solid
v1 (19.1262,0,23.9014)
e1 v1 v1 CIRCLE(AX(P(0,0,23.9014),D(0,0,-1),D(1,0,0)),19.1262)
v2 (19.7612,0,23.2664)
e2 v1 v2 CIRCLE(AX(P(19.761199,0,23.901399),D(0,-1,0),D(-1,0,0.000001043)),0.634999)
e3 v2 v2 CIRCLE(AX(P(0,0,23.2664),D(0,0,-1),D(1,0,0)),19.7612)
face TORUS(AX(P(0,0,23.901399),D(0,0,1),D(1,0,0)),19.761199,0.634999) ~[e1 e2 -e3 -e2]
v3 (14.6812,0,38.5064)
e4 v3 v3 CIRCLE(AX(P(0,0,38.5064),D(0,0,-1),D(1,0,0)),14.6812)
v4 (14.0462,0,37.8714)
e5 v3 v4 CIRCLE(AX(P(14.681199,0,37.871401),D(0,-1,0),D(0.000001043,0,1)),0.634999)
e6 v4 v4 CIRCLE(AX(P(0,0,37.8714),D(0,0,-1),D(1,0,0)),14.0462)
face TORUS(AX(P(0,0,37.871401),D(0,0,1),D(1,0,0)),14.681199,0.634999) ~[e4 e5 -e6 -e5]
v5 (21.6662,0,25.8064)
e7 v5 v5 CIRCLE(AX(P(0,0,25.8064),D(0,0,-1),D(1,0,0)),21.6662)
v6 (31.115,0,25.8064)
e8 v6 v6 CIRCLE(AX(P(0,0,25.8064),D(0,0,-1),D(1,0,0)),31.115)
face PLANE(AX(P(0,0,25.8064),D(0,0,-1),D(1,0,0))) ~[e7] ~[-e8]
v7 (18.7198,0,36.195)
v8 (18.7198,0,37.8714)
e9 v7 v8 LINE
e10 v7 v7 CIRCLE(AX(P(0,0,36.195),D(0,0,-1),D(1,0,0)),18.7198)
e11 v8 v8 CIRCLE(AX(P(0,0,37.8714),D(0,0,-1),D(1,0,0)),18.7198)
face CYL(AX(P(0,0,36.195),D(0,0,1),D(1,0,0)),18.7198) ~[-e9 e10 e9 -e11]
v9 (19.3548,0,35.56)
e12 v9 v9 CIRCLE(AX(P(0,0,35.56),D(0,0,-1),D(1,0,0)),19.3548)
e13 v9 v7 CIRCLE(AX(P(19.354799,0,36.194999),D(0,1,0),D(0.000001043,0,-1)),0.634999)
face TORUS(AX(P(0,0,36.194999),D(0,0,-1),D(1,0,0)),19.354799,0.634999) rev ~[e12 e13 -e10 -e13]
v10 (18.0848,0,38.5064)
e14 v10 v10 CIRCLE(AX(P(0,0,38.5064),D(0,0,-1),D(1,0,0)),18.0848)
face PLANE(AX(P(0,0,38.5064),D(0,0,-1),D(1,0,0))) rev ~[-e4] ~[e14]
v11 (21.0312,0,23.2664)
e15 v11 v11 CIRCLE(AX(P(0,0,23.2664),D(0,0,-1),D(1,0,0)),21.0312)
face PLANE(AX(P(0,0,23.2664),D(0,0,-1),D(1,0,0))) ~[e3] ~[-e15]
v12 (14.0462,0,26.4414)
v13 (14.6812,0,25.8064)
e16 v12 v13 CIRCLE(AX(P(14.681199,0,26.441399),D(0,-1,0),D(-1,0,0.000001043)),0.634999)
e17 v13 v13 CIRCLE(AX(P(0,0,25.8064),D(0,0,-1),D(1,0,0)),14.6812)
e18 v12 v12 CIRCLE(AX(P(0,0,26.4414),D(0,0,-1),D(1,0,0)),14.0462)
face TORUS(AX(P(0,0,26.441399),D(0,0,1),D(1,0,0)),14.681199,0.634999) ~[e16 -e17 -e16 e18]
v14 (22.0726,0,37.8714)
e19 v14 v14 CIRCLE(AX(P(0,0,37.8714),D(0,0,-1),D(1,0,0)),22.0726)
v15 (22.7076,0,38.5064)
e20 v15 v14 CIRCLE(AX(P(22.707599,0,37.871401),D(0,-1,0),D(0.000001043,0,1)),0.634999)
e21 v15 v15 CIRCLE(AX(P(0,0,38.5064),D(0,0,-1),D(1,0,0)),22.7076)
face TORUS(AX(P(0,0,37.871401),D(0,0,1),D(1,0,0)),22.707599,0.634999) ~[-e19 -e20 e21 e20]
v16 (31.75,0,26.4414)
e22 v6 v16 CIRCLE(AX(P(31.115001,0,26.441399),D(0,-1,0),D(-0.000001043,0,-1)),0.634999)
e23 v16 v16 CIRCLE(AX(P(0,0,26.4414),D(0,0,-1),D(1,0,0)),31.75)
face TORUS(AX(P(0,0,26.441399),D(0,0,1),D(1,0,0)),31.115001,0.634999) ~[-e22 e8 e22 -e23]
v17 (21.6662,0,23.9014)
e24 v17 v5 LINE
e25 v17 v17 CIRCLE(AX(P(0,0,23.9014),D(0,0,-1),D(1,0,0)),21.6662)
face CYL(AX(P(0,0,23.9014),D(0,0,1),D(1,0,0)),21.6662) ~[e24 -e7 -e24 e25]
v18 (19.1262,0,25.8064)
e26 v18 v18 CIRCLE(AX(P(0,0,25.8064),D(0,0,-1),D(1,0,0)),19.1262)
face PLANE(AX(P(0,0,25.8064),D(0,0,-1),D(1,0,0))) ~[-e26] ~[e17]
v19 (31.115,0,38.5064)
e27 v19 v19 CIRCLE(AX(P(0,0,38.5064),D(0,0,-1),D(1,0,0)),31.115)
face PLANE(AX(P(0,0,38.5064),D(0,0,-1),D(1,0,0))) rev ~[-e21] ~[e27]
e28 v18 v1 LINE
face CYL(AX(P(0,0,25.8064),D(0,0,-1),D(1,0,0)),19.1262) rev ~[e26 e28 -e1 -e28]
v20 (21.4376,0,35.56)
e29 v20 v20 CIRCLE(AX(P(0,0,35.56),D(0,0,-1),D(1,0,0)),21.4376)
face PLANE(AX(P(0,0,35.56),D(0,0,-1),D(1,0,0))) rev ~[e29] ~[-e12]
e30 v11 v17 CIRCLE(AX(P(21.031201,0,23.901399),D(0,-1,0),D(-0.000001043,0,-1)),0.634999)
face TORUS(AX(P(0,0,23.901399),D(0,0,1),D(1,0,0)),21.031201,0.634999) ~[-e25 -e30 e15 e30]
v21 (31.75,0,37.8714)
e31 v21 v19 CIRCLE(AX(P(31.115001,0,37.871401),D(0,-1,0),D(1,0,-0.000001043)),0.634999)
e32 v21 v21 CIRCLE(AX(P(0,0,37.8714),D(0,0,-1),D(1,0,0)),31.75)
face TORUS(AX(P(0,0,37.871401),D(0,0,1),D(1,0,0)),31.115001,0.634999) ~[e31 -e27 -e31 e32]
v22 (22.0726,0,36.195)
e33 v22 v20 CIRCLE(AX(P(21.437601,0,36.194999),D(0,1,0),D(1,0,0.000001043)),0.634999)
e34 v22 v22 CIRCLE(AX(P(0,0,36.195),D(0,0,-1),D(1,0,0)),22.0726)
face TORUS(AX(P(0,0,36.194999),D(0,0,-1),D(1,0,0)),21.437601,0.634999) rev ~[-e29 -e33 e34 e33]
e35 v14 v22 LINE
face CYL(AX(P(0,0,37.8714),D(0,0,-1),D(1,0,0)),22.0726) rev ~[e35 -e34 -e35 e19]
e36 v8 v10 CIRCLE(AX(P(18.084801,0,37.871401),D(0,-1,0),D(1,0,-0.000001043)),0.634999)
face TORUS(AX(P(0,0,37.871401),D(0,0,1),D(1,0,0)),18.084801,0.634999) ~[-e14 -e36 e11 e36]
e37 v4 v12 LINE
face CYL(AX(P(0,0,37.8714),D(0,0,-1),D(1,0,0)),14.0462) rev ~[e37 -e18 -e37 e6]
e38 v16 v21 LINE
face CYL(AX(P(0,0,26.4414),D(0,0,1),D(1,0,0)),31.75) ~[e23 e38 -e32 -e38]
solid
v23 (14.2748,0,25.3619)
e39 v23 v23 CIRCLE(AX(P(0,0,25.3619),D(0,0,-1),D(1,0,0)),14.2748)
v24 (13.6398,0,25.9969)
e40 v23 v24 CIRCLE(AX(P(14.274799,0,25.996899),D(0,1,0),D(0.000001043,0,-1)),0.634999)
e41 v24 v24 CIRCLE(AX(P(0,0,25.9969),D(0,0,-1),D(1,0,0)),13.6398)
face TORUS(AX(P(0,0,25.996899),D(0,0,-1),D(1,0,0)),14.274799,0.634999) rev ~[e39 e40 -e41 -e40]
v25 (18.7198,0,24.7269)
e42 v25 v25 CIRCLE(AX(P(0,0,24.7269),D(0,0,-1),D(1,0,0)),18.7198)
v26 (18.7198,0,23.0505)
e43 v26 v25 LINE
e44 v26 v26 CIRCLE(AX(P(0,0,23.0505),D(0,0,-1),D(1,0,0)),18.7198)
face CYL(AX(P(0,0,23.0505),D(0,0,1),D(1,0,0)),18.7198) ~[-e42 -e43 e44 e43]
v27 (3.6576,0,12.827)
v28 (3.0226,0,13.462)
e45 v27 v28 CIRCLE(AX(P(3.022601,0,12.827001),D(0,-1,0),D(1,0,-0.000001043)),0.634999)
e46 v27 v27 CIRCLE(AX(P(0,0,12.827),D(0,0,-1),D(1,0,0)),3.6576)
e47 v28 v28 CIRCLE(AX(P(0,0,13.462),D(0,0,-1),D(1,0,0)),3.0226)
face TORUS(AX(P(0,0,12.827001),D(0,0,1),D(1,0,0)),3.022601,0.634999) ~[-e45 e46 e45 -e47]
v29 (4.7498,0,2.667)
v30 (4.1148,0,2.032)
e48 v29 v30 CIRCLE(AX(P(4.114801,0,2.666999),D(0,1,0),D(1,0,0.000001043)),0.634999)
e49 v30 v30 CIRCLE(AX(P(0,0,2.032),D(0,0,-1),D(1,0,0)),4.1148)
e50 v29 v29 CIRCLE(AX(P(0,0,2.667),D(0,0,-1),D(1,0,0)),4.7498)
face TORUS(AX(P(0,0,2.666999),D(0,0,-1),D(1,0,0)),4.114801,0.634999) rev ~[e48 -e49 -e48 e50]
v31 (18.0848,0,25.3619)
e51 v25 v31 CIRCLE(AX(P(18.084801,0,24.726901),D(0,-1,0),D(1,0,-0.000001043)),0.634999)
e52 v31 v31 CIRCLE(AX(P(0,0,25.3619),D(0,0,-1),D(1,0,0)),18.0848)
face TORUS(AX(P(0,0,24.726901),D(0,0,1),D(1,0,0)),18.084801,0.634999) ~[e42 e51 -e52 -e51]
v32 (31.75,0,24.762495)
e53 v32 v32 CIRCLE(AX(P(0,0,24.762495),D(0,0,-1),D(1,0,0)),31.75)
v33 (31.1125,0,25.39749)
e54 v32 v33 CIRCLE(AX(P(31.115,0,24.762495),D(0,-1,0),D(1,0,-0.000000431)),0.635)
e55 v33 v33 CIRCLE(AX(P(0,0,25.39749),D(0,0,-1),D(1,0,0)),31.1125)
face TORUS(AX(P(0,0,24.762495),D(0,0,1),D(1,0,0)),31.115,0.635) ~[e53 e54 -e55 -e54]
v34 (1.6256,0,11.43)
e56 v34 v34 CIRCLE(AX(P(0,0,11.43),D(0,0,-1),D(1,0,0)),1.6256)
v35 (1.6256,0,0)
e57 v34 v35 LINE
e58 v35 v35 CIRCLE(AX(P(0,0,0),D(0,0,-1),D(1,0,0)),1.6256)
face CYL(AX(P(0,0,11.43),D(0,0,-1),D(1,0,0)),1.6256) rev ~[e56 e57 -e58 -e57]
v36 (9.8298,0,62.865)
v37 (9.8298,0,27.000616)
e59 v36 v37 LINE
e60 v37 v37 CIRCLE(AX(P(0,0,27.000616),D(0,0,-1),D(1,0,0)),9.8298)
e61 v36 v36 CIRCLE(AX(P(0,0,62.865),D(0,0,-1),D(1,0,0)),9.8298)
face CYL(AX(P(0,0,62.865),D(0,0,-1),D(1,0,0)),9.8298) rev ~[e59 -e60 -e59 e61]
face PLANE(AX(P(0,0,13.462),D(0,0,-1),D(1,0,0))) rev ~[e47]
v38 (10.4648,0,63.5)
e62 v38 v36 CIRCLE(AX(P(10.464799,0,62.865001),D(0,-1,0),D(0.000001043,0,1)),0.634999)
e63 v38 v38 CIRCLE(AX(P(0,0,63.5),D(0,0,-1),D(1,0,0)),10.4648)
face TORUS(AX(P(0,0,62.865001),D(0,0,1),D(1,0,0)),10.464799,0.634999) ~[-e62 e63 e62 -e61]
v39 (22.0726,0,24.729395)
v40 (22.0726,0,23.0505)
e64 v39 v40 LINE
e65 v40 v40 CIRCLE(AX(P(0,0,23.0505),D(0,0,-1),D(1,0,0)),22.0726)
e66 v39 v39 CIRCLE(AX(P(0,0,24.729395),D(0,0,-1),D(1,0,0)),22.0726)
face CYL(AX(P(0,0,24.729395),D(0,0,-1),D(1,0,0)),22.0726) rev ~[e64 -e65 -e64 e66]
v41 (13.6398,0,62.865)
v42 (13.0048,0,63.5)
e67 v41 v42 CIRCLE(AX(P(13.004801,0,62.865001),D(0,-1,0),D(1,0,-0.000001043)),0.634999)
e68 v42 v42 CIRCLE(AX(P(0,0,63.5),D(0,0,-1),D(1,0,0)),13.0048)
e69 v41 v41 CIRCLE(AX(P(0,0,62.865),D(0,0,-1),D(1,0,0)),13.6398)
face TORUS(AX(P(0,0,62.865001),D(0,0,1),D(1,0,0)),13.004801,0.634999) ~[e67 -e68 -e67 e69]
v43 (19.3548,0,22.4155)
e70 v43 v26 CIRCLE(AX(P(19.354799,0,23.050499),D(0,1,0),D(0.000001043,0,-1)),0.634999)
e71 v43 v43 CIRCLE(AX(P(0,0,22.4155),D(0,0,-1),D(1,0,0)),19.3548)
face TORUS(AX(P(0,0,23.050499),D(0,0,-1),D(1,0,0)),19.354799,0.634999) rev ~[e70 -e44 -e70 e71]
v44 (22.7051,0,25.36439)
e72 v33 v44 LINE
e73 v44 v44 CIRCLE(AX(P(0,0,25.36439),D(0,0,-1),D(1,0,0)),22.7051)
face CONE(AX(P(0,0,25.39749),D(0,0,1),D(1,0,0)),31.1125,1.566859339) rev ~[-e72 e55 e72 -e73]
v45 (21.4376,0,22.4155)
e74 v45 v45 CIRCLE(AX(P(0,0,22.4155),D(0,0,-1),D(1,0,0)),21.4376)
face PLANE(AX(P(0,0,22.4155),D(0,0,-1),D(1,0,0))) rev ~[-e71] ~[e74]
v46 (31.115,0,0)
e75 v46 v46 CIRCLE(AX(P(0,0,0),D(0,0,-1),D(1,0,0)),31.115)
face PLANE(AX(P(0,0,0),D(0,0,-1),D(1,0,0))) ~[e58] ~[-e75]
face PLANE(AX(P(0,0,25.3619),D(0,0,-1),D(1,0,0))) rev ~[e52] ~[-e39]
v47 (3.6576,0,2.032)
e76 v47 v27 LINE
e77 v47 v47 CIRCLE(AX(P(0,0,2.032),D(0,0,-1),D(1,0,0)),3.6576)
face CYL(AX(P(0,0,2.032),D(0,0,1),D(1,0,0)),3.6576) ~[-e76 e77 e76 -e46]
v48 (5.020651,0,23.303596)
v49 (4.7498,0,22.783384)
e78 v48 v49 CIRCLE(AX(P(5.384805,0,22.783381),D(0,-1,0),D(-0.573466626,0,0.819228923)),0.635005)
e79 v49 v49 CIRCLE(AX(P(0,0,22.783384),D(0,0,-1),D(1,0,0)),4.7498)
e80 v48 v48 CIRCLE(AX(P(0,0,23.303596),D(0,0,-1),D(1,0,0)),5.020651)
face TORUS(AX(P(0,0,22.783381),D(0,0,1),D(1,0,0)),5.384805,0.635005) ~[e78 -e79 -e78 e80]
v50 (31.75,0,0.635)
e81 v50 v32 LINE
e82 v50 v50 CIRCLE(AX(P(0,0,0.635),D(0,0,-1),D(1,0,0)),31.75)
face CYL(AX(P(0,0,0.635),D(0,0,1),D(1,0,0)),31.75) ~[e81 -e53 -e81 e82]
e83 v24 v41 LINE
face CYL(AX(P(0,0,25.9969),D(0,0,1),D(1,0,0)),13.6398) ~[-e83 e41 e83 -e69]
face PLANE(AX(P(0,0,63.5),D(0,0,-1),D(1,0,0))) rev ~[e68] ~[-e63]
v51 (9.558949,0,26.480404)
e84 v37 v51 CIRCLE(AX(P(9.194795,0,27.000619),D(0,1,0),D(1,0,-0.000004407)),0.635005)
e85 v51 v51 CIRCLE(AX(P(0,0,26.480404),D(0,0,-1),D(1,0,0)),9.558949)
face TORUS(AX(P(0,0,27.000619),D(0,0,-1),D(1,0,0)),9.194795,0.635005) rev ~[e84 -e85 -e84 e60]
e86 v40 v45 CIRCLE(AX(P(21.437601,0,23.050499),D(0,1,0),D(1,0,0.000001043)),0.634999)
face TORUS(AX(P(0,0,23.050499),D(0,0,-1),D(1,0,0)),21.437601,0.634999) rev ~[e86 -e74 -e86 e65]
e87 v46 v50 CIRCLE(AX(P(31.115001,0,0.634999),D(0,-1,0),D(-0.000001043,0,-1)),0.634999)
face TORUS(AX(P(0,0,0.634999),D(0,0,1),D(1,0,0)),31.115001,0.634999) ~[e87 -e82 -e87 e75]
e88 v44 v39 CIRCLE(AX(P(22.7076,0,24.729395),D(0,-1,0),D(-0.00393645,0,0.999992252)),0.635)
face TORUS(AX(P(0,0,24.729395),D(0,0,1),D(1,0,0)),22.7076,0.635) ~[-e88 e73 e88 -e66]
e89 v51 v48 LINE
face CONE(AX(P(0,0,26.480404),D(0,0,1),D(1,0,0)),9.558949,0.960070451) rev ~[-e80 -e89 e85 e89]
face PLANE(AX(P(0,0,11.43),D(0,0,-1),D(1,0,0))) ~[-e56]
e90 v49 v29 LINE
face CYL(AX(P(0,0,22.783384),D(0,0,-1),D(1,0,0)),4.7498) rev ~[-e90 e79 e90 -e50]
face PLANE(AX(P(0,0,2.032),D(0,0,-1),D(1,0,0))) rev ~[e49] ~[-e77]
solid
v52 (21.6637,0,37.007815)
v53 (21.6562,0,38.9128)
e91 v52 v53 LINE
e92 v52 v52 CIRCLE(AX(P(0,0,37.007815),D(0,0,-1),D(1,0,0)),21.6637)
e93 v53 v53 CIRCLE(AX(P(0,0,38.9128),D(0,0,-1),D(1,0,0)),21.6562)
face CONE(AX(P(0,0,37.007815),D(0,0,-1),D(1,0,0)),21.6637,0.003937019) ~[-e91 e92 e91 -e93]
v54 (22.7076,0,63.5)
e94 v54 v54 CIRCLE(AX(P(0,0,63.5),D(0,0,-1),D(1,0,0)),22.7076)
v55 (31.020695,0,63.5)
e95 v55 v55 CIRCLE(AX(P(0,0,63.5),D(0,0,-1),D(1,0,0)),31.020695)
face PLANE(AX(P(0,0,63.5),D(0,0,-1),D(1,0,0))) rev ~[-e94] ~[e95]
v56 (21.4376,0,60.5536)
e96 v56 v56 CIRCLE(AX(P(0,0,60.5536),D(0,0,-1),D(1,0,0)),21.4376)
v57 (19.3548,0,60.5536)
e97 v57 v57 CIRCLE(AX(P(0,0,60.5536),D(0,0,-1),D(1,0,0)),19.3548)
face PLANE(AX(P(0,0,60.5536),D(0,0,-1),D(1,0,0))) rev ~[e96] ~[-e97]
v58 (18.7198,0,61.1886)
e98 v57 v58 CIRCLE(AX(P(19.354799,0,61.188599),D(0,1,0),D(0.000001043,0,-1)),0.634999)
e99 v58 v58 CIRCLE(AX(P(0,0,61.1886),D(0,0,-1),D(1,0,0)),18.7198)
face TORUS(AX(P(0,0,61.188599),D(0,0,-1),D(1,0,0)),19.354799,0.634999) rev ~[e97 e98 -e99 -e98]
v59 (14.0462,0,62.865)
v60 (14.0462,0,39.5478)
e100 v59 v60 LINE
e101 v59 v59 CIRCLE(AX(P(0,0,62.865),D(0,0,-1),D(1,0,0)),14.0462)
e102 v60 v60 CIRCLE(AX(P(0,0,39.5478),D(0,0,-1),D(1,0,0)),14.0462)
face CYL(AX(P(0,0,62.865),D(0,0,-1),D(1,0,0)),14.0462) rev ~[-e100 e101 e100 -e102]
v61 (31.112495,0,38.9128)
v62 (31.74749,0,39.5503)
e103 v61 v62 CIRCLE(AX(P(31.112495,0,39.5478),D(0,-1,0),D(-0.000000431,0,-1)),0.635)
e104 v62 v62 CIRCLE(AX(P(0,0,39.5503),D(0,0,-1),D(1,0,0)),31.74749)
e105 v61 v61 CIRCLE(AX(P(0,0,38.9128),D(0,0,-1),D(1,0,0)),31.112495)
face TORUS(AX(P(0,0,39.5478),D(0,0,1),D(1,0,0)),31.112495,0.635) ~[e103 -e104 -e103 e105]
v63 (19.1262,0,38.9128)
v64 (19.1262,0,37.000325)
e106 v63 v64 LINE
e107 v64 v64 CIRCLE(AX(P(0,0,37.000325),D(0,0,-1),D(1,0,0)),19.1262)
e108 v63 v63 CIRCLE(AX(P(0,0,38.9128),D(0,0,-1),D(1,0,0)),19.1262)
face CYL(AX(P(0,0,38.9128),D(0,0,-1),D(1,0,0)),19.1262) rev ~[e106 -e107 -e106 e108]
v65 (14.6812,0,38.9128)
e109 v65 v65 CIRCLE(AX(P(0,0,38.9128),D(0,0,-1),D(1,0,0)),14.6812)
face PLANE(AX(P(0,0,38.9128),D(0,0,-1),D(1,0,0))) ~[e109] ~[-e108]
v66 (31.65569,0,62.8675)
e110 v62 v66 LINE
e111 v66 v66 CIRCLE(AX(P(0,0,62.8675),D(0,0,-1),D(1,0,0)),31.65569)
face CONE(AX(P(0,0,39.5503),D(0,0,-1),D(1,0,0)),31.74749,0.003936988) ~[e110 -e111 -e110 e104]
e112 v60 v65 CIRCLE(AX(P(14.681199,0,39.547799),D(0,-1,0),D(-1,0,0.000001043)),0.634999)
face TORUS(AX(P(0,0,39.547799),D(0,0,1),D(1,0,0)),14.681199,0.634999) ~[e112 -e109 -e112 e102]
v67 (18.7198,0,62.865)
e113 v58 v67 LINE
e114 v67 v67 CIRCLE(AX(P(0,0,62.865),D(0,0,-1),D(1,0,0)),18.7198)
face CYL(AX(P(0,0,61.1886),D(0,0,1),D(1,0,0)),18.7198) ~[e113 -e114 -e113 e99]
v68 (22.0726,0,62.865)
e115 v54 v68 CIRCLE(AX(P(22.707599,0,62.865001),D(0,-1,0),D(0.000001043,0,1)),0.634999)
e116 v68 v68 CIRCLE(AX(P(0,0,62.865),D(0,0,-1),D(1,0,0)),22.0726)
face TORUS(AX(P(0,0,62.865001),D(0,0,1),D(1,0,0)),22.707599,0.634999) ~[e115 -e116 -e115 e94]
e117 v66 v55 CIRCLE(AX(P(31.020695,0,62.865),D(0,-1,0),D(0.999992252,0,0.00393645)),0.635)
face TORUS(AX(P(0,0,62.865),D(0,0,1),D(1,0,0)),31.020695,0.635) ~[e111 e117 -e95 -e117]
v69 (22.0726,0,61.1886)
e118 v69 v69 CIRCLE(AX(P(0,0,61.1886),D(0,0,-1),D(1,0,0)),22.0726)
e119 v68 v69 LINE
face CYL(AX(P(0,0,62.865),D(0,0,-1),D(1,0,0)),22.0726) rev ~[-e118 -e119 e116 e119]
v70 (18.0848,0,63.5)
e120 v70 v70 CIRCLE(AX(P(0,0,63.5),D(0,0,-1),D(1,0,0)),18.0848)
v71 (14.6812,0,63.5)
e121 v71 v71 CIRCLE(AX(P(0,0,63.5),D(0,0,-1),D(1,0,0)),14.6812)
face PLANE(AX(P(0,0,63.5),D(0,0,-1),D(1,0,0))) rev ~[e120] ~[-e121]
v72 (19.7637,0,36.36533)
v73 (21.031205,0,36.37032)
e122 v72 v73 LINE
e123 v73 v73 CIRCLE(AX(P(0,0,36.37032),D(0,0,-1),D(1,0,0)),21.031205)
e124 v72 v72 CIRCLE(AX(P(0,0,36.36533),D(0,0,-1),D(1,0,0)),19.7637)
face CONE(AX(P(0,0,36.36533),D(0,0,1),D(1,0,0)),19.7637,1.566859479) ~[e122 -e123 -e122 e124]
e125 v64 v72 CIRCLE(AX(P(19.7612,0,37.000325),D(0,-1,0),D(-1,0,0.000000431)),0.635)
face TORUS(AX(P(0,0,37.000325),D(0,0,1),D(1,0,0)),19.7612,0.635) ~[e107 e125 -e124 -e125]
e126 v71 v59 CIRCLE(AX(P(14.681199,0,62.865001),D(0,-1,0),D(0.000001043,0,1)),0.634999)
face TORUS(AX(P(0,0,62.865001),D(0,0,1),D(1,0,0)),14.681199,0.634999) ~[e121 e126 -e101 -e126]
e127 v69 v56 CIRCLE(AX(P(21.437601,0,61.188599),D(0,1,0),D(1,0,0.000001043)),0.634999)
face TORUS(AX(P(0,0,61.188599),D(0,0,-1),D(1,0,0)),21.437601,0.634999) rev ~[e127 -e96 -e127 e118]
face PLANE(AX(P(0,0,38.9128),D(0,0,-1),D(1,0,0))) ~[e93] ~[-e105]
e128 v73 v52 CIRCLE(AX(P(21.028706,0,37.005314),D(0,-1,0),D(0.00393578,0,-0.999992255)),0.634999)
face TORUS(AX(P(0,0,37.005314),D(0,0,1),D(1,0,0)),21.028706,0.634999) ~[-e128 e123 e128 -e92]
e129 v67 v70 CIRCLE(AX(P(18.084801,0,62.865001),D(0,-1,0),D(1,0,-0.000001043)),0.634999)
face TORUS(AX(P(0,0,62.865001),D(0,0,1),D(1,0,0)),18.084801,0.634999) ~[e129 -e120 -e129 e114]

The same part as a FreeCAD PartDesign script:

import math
import FreeCAD as App
import Part
import Sketcher
from FreeCAD import Vector
Q = App.Units.Quantity

doc = App.newDocument("Part")
body = doc.addObject("PartDesign::Body", "Body")
body.AllowCompound = True

# Sketch on XZ plane
sketch1 = body.newObject("Sketcher::SketchObject", "Sketch")
sketch1.AttachmentSupport = (doc.getObject("XZ_Plane"), [""])
sketch1.MapMode = "FlatFace"
sketch1.addGeometry(Part.LineSegment(Vector(0, 13.46, 0), Vector(0, 11.43, 0)), False)
sketch1.addGeometry(Part.LineSegment(Vector(0, 11.43, 0), Vector(1.63, 11.43, 0)), False)
sketch1.addGeometry(Part.LineSegment(Vector(1.63, 11.43, 0), Vector(1.63, 0, 0)), False)
sketch1.addGeometry(Part.LineSegment(Vector(1.63, 0, 0), Vector(31.11, 0, 0)), False)
sketch1.addGeometry(Part.ArcOfCircle(Part.Circle(Vector(31.12, 0.63, 0), Vector(0, 0, 1), 0.63), math.radians(-90), math.radians(0)), False)
sketch1.addGeometry(Part.LineSegment(Vector(31.75, 0.64, 0), Vector(31.75, 24.76, 0)), False)
sketch1.addGeometry(Part.ArcOfCircle(Part.Circle(Vector(31.12, 24.76, 0), Vector(0, 0, 1), 0.63), math.radians(0), math.radians(90)), False)
sketch1.addGeometry(Part.LineSegment(Vector(31.11, 25.4, 0), Vector(22.71, 25.36, 0)), False)
sketch1.addGeometry(Part.ArcOfCircle(Part.Circle(Vector(22.71, 24.73, 0), Vector(0, 0, 1), 0.63), math.radians(90), math.radians(180)), False)
sketch1.addGeometry(Part.LineSegment(Vector(22.07, 24.73, 0), Vector(22.07, 23.05, 0)), False)
sketch1.addGeometry(Part.ArcOfCircle(Part.Circle(Vector(21.44, 23.05, 0), Vector(0, 0, 1), 0.63), math.radians(-90), math.radians(0)), False)
sketch1.addGeometry(Part.LineSegment(Vector(21.44, 22.42, 0), Vector(19.35, 22.42, 0)), False)
sketch1.addGeometry(Part.ArcOfCircle(Part.Circle(Vector(19.35, 23.05, 0), Vector(0, 0, 1), 0.63), math.radians(180), math.radians(270)), False)
sketch1.addGeometry(Part.LineSegment(Vector(18.72, 23.05, 0), Vector(18.72, 24.73, 0)), False)
sketch1.addGeometry(Part.ArcOfCircle(Part.Circle(Vector(18.08, 24.73, 0), Vector(0, 0, 1), 0.63), math.radians(0), math.radians(90)), False)
sketch1.addGeometry(Part.LineSegment(Vector(18.08, 25.36, 0), Vector(14.27, 25.36, 0)), False)
sketch1.addGeometry(Part.ArcOfCircle(Part.Circle(Vector(14.27, 26, 0), Vector(0, 0, 1), 0.63), math.radians(180), math.radians(270)), False)
sketch1.addGeometry(Part.LineSegment(Vector(13.64, 26, 0), Vector(13.64, 62.87, 0)), False)
sketch1.addGeometry(Part.ArcOfCircle(Part.Circle(Vector(13, 62.87, 0), Vector(0, 0, 1), 0.63), math.radians(0), math.radians(90)), False)
sketch1.addGeometry(Part.LineSegment(Vector(13, 63.5, 0), Vector(10.46, 63.5, 0)), False)
sketch1.addGeometry(Part.ArcOfCircle(Part.Circle(Vector(10.46, 62.87, 0), Vector(0, 0, 1), 0.63), math.radians(90), math.radians(180)), False)
sketch1.addGeometry(Part.LineSegment(Vector(9.83, 62.87, 0), Vector(9.83, 27, 0)), False)
sketch1.addGeometry(Part.ArcOfCircle(Part.Circle(Vector(9.19, 27, 0), Vector(0, 0, 1), 0.64), math.radians(-55), math.radians(0)), False)
sketch1.addGeometry(Part.LineSegment(Vector(9.56, 26.48, 0), Vector(5.02, 23.3, 0)), False)
sketch1.addGeometry(Part.ArcOfCircle(Part.Circle(Vector(5.38, 22.78, 0), Vector(0, 0, 1), 0.64), math.radians(125), math.radians(180)), False)
sketch1.addGeometry(Part.LineSegment(Vector(4.75, 22.78, 0), Vector(4.75, 2.67, 0)), False)
sketch1.addGeometry(Part.ArcOfCircle(Part.Circle(Vector(4.11, 2.67, 0), Vector(0, 0, 1), 0.63), math.radians(-90), math.radians(0)), False)
sketch1.addGeometry(Part.LineSegment(Vector(4.11, 2.03, 0), Vector(3.66, 2.03, 0)), False)
sketch1.addGeometry(Part.LineSegment(Vector(3.66, 2.03, 0), Vector(3.66, 12.83, 0)), False)
sketch1.addGeometry(Part.ArcOfCircle(Part.Circle(Vector(3.02, 12.83, 0), Vector(0, 0, 1), 0.63), math.radians(0), math.radians(90)), False)
sketch1.addGeometry(Part.LineSegment(Vector(3.02, 13.46, 0), Vector(0, 13.46, 0)), False)
sketch1.addGeometry(Part.ArcOfCircle(Part.Circle(Vector(14.68, 37.87, 0), Vector(0, 0, 1), 0.63), math.radians(90), math.radians(180)), False)
sketch1.addGeometry(Part.LineSegment(Vector(14.05, 37.87, 0), Vector(14.05, 26.44, 0)), False)
sketch1.addGeometry(Part.ArcOfCircle(Part.Circle(Vector(14.68, 26.44, 0), Vector(0, 0, 1), 0.63), math.radians(180), math.radians(270)), False)
sketch1.addGeometry(Part.LineSegment(Vector(14.68, 25.81, 0), Vector(19.13, 25.81, 0)), False)
sketch1.addGeometry(Part.LineSegment(Vector(19.13, 25.81, 0), Vector(19.13, 23.9, 0)), False)
sketch1.addGeometry(Part.ArcOfCircle(Part.Circle(Vector(19.76, 23.9, 0), Vector(0, 0, 1), 0.63), math.radians(180), math.radians(270)), False)
sketch1.addGeometry(Part.LineSegment(Vector(19.76, 23.27, 0), Vector(21.03, 23.27, 0)), False)
sketch1.addGeometry(Part.ArcOfCircle(Part.Circle(Vector(21.03, 23.9, 0), Vector(0, 0, 1), 0.63), math.radians(-90), math.radians(0)), False)
sketch1.addGeometry(Part.LineSegment(Vector(21.67, 23.9, 0), Vector(21.67, 25.81, 0)), False)
sketch1.addGeometry(Part.LineSegment(Vector(21.67, 25.81, 0), Vector(31.11, 25.81, 0)), False)
sketch1.addGeometry(Part.ArcOfCircle(Part.Circle(Vector(31.12, 26.44, 0), Vector(0, 0, 1), 0.63), math.radians(-90), math.radians(0)), False)
sketch1.addGeometry(Part.LineSegment(Vector(31.75, 26.44, 0), Vector(31.75, 37.87, 0)), False)
sketch1.addGeometry(Part.ArcOfCircle(Part.Circle(Vector(31.12, 37.87, 0), Vector(0, 0, 1), 0.63), math.radians(0), math.radians(90)), False)
sketch1.addGeometry(Part.LineSegment(Vector(31.11, 38.51, 0), Vector(22.71, 38.51, 0)), False)
sketch1.addGeometry(Part.ArcOfCircle(Part.Circle(Vector(22.71, 37.87, 0), Vector(0, 0, 1), 0.63), math.radians(90), math.radians(180)), False)
sketch1.addGeometry(Part.LineSegment(Vector(22.07, 37.87, 0), Vector(22.07, 36.2, 0)), False)
sketch1.addGeometry(Part.ArcOfCircle(Part.Circle(Vector(21.44, 36.19, 0), Vector(0, 0, 1), 0.63), math.radians(-90), math.radians(0)), False)
sketch1.addGeometry(Part.LineSegment(Vector(21.44, 35.56, 0), Vector(19.35, 35.56, 0)), False)
sketch1.addGeometry(Part.ArcOfCircle(Part.Circle(Vector(19.35, 36.19, 0), Vector(0, 0, 1), 0.63), math.radians(180), math.radians(270)), False)
sketch1.addGeometry(Part.LineSegment(Vector(18.72, 36.2, 0), Vector(18.72, 37.87, 0)), False)
sketch1.addGeometry(Part.ArcOfCircle(Part.Circle(Vector(18.08, 37.87, 0), Vector(0, 0, 1), 0.63), math.radians(0), math.radians(90)), False)
sketch1.addGeometry(Part.LineSegment(Vector(18.08, 38.51, 0), Vector(14.68, 38.51, 0)), False)
sketch1.addGeometry(Part.ArcOfCircle(Part.Circle(Vector(14.68, 39.55, 0), Vector(0, 0, 1), 0.63), math.radians(180), math.radians(270)), False)
sketch1.addGeometry(Part.LineSegment(Vector(14.68, 38.91, 0), Vector(19.13, 38.91, 0)), False)
sketch1.addGeometry(Part.LineSegment(Vector(19.13, 38.91, 0), Vector(19.13, 37, 0)), False)
sketch1.addGeometry(Part.ArcOfCircle(Part.Circle(Vector(19.76, 37, 0), Vector(0, 0, 1), 0.63), math.radians(180), math.radians(270)), False)
sketch1.addGeometry(Part.LineSegment(Vector(19.76, 36.37, 0), Vector(21.03, 36.37, 0)), False)
sketch1.addGeometry(Part.ArcOfCircle(Part.Circle(Vector(21.03, 37.01, 0), Vector(0, 0, 1), 0.63), math.radians(-90), math.radians(0)), False)
sketch1.addGeometry(Part.LineSegment(Vector(21.66, 37.01, 0), Vector(21.66, 38.91, 0)), False)
sketch1.addGeometry(Part.LineSegment(Vector(21.66, 38.91, 0), Vector(31.11, 38.91, 0)), False)
sketch1.addGeometry(Part.ArcOfCircle(Part.Circle(Vector(31.11, 39.55, 0), Vector(0, 0, 1), 0.63), math.radians(-90), math.radians(0)), False)
sketch1.addGeometry(Part.LineSegment(Vector(31.75, 39.55, 0), Vector(31.66, 62.87, 0)), False)
sketch1.addGeometry(Part.ArcOfCircle(Part.Circle(Vector(31.02, 62.87, 0), Vector(0, 0, 1), 0.63), math.radians(0), math.radians(90)), False)
sketch1.addGeometry(Part.LineSegment(Vector(31.02, 63.5, 0), Vector(22.71, 63.5, 0)), False)
sketch1.addGeometry(Part.ArcOfCircle(Part.Circle(Vector(22.71, 62.87, 0), Vector(0, 0, 1), 0.63), math.radians(90), math.radians(180)), False)
sketch1.addGeometry(Part.LineSegment(Vector(22.07, 62.87, 0), Vector(22.07, 61.19, 0)), False)
sketch1.addGeometry(Part.ArcOfCircle(Part.Circle(Vector(21.44, 61.19, 0), Vector(0, 0, 1), 0.63), math.radians(-90), math.radians(0)), False)
sketch1.addGeometry(Part.LineSegment(Vector(21.44, 60.55, 0), Vector(19.35, 60.55, 0)), False)
sketch1.addGeometry(Part.ArcOfCircle(Part.Circle(Vector(19.35, 61.19, 0), Vector(0, 0, 1), 0.63), math.radians(180), math.radians(270)), False)
sketch1.addGeometry(Part.LineSegment(Vector(18.72, 61.19, 0), Vector(18.72, 62.87, 0)), False)
sketch1.addGeometry(Part.ArcOfCircle(Part.Circle(Vector(18.08, 62.87, 0), Vector(0, 0, 1), 0.63), math.radians(0), math.radians(90)), False)
sketch1.addGeometry(Part.LineSegment(Vector(18.08, 63.5, 0), Vector(14.68, 63.5, 0)), False)
sketch1.addGeometry(Part.ArcOfCircle(Part.Circle(Vector(14.68, 62.87, 0), Vector(0, 0, 1), 0.63), math.radians(90), math.radians(180)), False)
sketch1.addGeometry(Part.LineSegment(Vector(14.05, 62.87, 0), Vector(14.05, 39.55, 0)), False)
sketch1.addConstraint(Sketcher.Constraint("Coincident", 0, 2, 1, 1))
sketch1.addConstraint(Sketcher.Constraint("Coincident", 1, 2, 2, 1))
sketch1.addConstraint(Sketcher.Constraint("Coincident", 2, 2, 3, 1))
sketch1.addConstraint(Sketcher.Constraint("Tangent", 3, 2, 4, 1))
sketch1.addConstraint(Sketcher.Constraint("Tangent", 4, 2, 5, 1))
sketch1.addConstraint(Sketcher.Constraint("Tangent", 5, 2, 6, 1))
sketch1.addConstraint(Sketcher.Constraint("Tangent", 6, 2, 7, 1))
sketch1.addConstraint(Sketcher.Constraint("Tangent", 7, 2, 8, 1))
sketch1.addConstraint(Sketcher.Constraint("Tangent", 8, 2, 9, 1))
sketch1.addConstraint(Sketcher.Constraint("Tangent", 9, 2, 10, 2))
sketch1.addConstraint(Sketcher.Constraint("Tangent", 10, 1, 11, 1))
sketch1.addConstraint(Sketcher.Constraint("Tangent", 11, 2, 12, 2))
sketch1.addConstraint(Sketcher.Constraint("Tangent", 12, 1, 13, 1))
sketch1.addConstraint(Sketcher.Constraint("Tangent", 13, 2, 14, 1))
sketch1.addConstraint(Sketcher.Constraint("Tangent", 14, 2, 15, 1))
sketch1.addConstraint(Sketcher.Constraint("Tangent", 15, 2, 16, 2))
sketch1.addConstraint(Sketcher.Constraint("Tangent", 16, 1, 17, 1))
sketch1.addConstraint(Sketcher.Constraint("Tangent", 17, 2, 18, 1))
sketch1.addConstraint(Sketcher.Constraint("Tangent", 18, 2, 19, 1))
sketch1.addConstraint(Sketcher.Constraint("Tangent", 19, 2, 20, 1))
sketch1.addConstraint(Sketcher.Constraint("Tangent", 20, 2, 21, 1))
sketch1.addConstraint(Sketcher.Constraint("Coincident", 21, 2, 22, 2))
sketch1.addConstraint(Sketcher.Constraint("Coincident", 22, 1, 23, 1))
sketch1.addConstraint(Sketcher.Constraint("Coincident", 23, 2, 24, 1))
sketch1.addConstraint(Sketcher.Constraint("Coincident", 24, 2, 25, 1))
sketch1.addConstraint(Sketcher.Constraint("Tangent", 25, 2, 26, 2))
sketch1.addConstraint(Sketcher.Constraint("Tangent", 26, 1, 27, 1))
sketch1.addConstraint(Sketcher.Constraint("Coincident", 27, 2, 28, 1))
sketch1.addConstraint(Sketcher.Constraint("Tangent", 28, 2, 29, 1))
sketch1.addConstraint(Sketcher.Constraint("Tangent", 29, 2, 30, 1))
sketch1.addConstraint(Sketcher.Constraint("Coincident", 30, 2, 0, 1))
sketch1.addConstraint(Sketcher.Constraint("Tangent", 31, 2, 32, 1))
sketch1.addConstraint(Sketcher.Constraint("Tangent", 32, 2, 33, 1))
sketch1.addConstraint(Sketcher.Constraint("Tangent", 33, 2, 34, 1))
sketch1.addConstraint(Sketcher.Constraint("Coincident", 34, 2, 35, 1))
sketch1.addConstraint(Sketcher.Constraint("Tangent", 35, 2, 36, 1))
sketch1.addConstraint(Sketcher.Constraint("Tangent", 36, 2, 37, 1))
sketch1.addConstraint(Sketcher.Constraint("Tangent", 37, 2, 38, 1))
sketch1.addConstraint(Sketcher.Constraint("Tangent", 38, 2, 39, 1))
sketch1.addConstraint(Sketcher.Constraint("Coincident", 39, 2, 40, 1))
sketch1.addConstraint(Sketcher.Constraint("Tangent", 40, 2, 41, 1))
sketch1.addConstraint(Sketcher.Constraint("Tangent", 41, 2, 42, 1))
sketch1.addConstraint(Sketcher.Constraint("Tangent", 42, 2, 43, 1))
sketch1.addConstraint(Sketcher.Constraint("Tangent", 43, 2, 44, 1))
sketch1.addConstraint(Sketcher.Constraint("Tangent", 44, 2, 45, 1))
sketch1.addConstraint(Sketcher.Constraint("Tangent", 45, 2, 46, 1))
sketch1.addConstraint(Sketcher.Constraint("Tangent", 46, 2, 47, 2))
sketch1.addConstraint(Sketcher.Constraint("Tangent", 47, 1, 48, 1))
sketch1.addConstraint(Sketcher.Constraint("Tangent", 48, 2, 49, 2))
sketch1.addConstraint(Sketcher.Constraint("Tangent", 49, 1, 50, 1))
sketch1.addConstraint(Sketcher.Constraint("Tangent", 50, 2, 51, 1))
sketch1.addConstraint(Sketcher.Constraint("Tangent", 51, 2, 52, 1))
sketch1.addConstraint(Sketcher.Constraint("Tangent", 52, 2, 31, 1))
sketch1.addConstraint(Sketcher.Constraint("Tangent", 53, 2, 54, 1))
sketch1.addConstraint(Sketcher.Constraint("Coincident", 54, 2, 55, 1))
sketch1.addConstraint(Sketcher.Constraint("Tangent", 55, 2, 56, 1))
sketch1.addConstraint(Sketcher.Constraint("Tangent", 56, 2, 57, 1))
sketch1.addConstraint(Sketcher.Constraint("Tangent", 57, 2, 58, 1))
sketch1.addConstraint(Sketcher.Constraint("Tangent", 58, 2, 59, 1))
sketch1.addConstraint(Sketcher.Constraint("Coincident", 59, 2, 60, 1))
sketch1.addConstraint(Sketcher.Constraint("Tangent", 60, 2, 61, 1))
sketch1.addConstraint(Sketcher.Constraint("Tangent", 61, 2, 62, 1))
sketch1.addConstraint(Sketcher.Constraint("Tangent", 62, 2, 63, 1))
sketch1.addConstraint(Sketcher.Constraint("Tangent", 63, 2, 64, 1))
sketch1.addConstraint(Sketcher.Constraint("Tangent", 64, 2, 65, 1))
sketch1.addConstraint(Sketcher.Constraint("Tangent", 65, 2, 66, 1))
sketch1.addConstraint(Sketcher.Constraint("Tangent", 66, 2, 67, 2))
sketch1.addConstraint(Sketcher.Constraint("Tangent", 67, 1, 68, 1))
sketch1.addConstraint(Sketcher.Constraint("Tangent", 68, 2, 69, 2))
sketch1.addConstraint(Sketcher.Constraint("Tangent", 69, 1, 70, 1))
sketch1.addConstraint(Sketcher.Constraint("Tangent", 70, 2, 71, 1))
sketch1.addConstraint(Sketcher.Constraint("Tangent", 71, 2, 72, 1))
sketch1.addConstraint(Sketcher.Constraint("Tangent", 72, 2, 73, 1))
sketch1.addConstraint(Sketcher.Constraint("Tangent", 73, 2, 74, 1))
sketch1.addConstraint(Sketcher.Constraint("Tangent", 74, 2, 53, 1))
sketch1.addConstraint(Sketcher.Constraint("Vertical", 0))
sketch1.addConstraint(Sketcher.Constraint("Horizontal", 1))
sketch1.addConstraint(Sketcher.Constraint("Vertical", 2))
sketch1.addConstraint(Sketcher.Constraint("Horizontal", 3))
sketch1.addConstraint(Sketcher.Constraint("Vertical", 5))
sketch1.addConstraint(Sketcher.Constraint("Vertical", 9))
sketch1.addConstraint(Sketcher.Constraint("Horizontal", 11))
sketch1.addConstraint(Sketcher.Constraint("Vertical", 13))
sketch1.addConstraint(Sketcher.Constraint("Horizontal", 15))
sketch1.addConstraint(Sketcher.Constraint("Vertical", 17))
sketch1.addConstraint(Sketcher.Constraint("Horizontal", 19))
sketch1.addConstraint(Sketcher.Constraint("Vertical", 21))
sketch1.addConstraint(Sketcher.Constraint("Vertical", 25))
sketch1.addConstraint(Sketcher.Constraint("Horizontal", 27))
sketch1.addConstraint(Sketcher.Constraint("Vertical", 28))
sketch1.addConstraint(Sketcher.Constraint("Horizontal", 30))
sketch1.addConstraint(Sketcher.Constraint("Vertical", 32))
sketch1.addConstraint(Sketcher.Constraint("Horizontal", 34))
sketch1.addConstraint(Sketcher.Constraint("Vertical", 35))
sketch1.addConstraint(Sketcher.Constraint("Horizontal", 37))
sketch1.addConstraint(Sketcher.Constraint("Vertical", 39))
sketch1.addConstraint(Sketcher.Constraint("Horizontal", 40))
sketch1.addConstraint(Sketcher.Constraint("Vertical", 42))
sketch1.addConstraint(Sketcher.Constraint("Horizontal", 44))
sketch1.addConstraint(Sketcher.Constraint("Vertical", 46))
sketch1.addConstraint(Sketcher.Constraint("Horizontal", 48))
sketch1.addConstraint(Sketcher.Constraint("Vertical", 50))
sketch1.addConstraint(Sketcher.Constraint("Horizontal", 52))
sketch1.addConstraint(Sketcher.Constraint("Horizontal", 54))
sketch1.addConstraint(Sketcher.Constraint("Vertical", 55))
sketch1.addConstraint(Sketcher.Constraint("Horizontal", 60))
sketch1.addConstraint(Sketcher.Constraint("Horizontal", 64))
sketch1.addConstraint(Sketcher.Constraint("Vertical", 66))
sketch1.addConstraint(Sketcher.Constraint("Horizontal", 68))
sketch1.addConstraint(Sketcher.Constraint("Vertical", 70))
sketch1.addConstraint(Sketcher.Constraint("Horizontal", 72))
sketch1.addConstraint(Sketcher.Constraint("Vertical", 74))
sketch1.addConstraint(Sketcher.Constraint("Equal", 4, 6))
sketch1.addConstraint(Sketcher.Constraint("Equal", 6, 8))
sketch1.addConstraint(Sketcher.Constraint("Equal", 8, 10))
sketch1.addConstraint(Sketcher.Constraint("Equal", 10, 12))
sketch1.addConstraint(Sketcher.Constraint("Equal", 12, 14))
sketch1.addConstraint(Sketcher.Constraint("Equal", 14, 16))
sketch1.addConstraint(Sketcher.Constraint("Equal", 16, 18))
sketch1.addConstraint(Sketcher.Constraint("Equal", 18, 20))
sketch1.addConstraint(Sketcher.Constraint("Equal", 22, 24))
sketch1.addConstraint(Sketcher.Constraint("Equal", 20, 26))
sketch1.addConstraint(Sketcher.Constraint("Equal", 26, 29))
sketch1.addConstraint(Sketcher.Constraint("Equal", 29, 31))
sketch1.addConstraint(Sketcher.Constraint("Equal", 31, 33))
sketch1.addConstraint(Sketcher.Constraint("Equal", 33, 36))
sketch1.addConstraint(Sketcher.Constraint("Equal", 36, 38))
sketch1.addConstraint(Sketcher.Constraint("Equal", 38, 41))
sketch1.addConstraint(Sketcher.Constraint("Equal", 41, 43))
sketch1.addConstraint(Sketcher.Constraint("Equal", 43, 45))
sketch1.addConstraint(Sketcher.Constraint("Equal", 45, 47))
sketch1.addConstraint(Sketcher.Constraint("Equal", 47, 49))
sketch1.addConstraint(Sketcher.Constraint("Equal", 49, 51))
sketch1.addConstraint(Sketcher.Constraint("Equal", 51, 53))
sketch1.addConstraint(Sketcher.Constraint("Equal", 53, 56))
sketch1.addConstraint(Sketcher.Constraint("Equal", 56, 58))
sketch1.addConstraint(Sketcher.Constraint("Equal", 58, 61))
sketch1.addConstraint(Sketcher.Constraint("Equal", 61, 63))
sketch1.addConstraint(Sketcher.Constraint("Equal", 63, 65))
sketch1.addConstraint(Sketcher.Constraint("Equal", 65, 67))
sketch1.addConstraint(Sketcher.Constraint("Equal", 67, 69))
sketch1.addConstraint(Sketcher.Constraint("Equal", 69, 71))
sketch1.addConstraint(Sketcher.Constraint("Equal", 71, 73))
sketch1.addConstraint(Sketcher.Constraint("PointOnObject", 0, 2, -2))
sketch1.addConstraint(Sketcher.Constraint("PointOnObject", 2, 2, -1))
sketch1.addConstraint(Sketcher.Constraint("Parallel", 7, 57))
sketch1.addConstraint(Sketcher.Constraint("Perpendicular", 57, 59))
sketch1.addConstraint(Sketcher.Constraint("Parallel", 59, 62))
sketch1.addConstraint(Sketcher.Constraint("Horizontal", 33, 3, 41, 3))
sketch1.addConstraint(Sketcher.Constraint("Horizontal", 31, 3, 43, 3))
sketch1.addConstraint(Sketcher.Constraint("Horizontal", 53, 3, 61, 3))
sketch1.addConstraint(Sketcher.Constraint("Horizontal", 20, 3, 63, 3))
sketch1.addConstraint(Sketcher.Constraint("Horizontal", 65, 3, 71, 3))
sketch1.addConstraint(Sketcher.Constraint("Vertical", 6, 3, 41, 3))
sketch1.addConstraint(Sketcher.Constraint("Vertical", 8, 3, 45, 3))
sketch1.addConstraint(Sketcher.Constraint("Vertical", 12, 3, 49, 3))
sketch1.addConstraint(Sketcher.Constraint("Vertical", 33, 3, 53, 3))
sketch1.addConstraint(Sketcher.Constraint("Vertical", 36, 3, 56, 3))
sketch1.addConstraint(Sketcher.Constraint("Vertical", 45, 3, 65, 3))
sketch1.addConstraint(Sketcher.Constraint("Vertical", 49, 3, 69, 3))
sketch1.addConstraint(Sketcher.Constraint("Equal", 2, 32))
sketch1.addConstraint(Sketcher.Constraint("Equal", 13, 46))
sketch1.addConstraint(Sketcher.Constraint("Equal", 50, 66))
sketch1.addConstraint(Sketcher.Constraint("DistanceX", 19, 2, 19, 1, Q("0.1 in")))
sketch1.addConstraint(Sketcher.Constraint("Radius", 4, Q("0.025 in")))
sketch1.addConstraint(Sketcher.Constraint("DistanceX", 15, 2, 15, 1, Q("0.15 in")))
sketch1.addConstraint(Sketcher.Constraint("DistanceX", 37, 1, 37, 2, Q("0.05 in")))
sketch1.addConstraint(Sketcher.Constraint("DistanceY", 0, 2, 0, 1, Q("0.08 in")))
sketch1.addConstraint(Sketcher.Constraint("DistanceY", 2, 2, 2, 1, Q("0.45 in")))
sketch1.addConstraint(Sketcher.Constraint("DistanceY", -1, 1, 18, 2, Q("2.5 in")))
sketch1.addConstraint(Sketcher.Constraint("DistanceY", -1, 1, 47, 1, Q("1.4 in")))
sketch1.addConstraint(Sketcher.Constraint("DistanceX", 1, 1, 1, 2, Q("0.064 in")))
sketch1.addConstraint(Sketcher.Constraint("DistanceX", 3, 1, 3, 2, Q("1.161 in")))
sketch1.addConstraint(Sketcher.Constraint("DistanceX", 11, 2, 11, 1, Q("0.082 in")))
sketch1.addConstraint(Sketcher.Constraint("DistanceX", 27, 2, 27, 1, Q("0.018 in")))
sketch1.addConstraint(Sketcher.Constraint("DistanceX", 30, 2, 30, 1, Q("0.119 in")))
sketch1.addConstraint(Sketcher.Constraint("DistanceX", 34, 1, 34, 2, Q("0.175 in")))
sketch1.addConstraint(Sketcher.Constraint("DistanceX", 40, 1, 40, 2, Q("0.372 in")))
sketch1.addConstraint(Sketcher.Constraint("DistanceX", 44, 2, 44, 1, Q("0.331 in")))
sketch1.addConstraint(Sketcher.Constraint("DistanceY", 13, 1, 13, 2, Q("0.066 in")))
sketch1.addConstraint(Sketcher.Constraint("DistanceY", 28, 1, 28, 2, Q("0.425 in")))
sketch1.addConstraint(Sketcher.Constraint("DistanceY", 35, 2, 35, 1, Q("0.075 in")))
sketch1.addConstraint(Sketcher.Constraint("DistanceY", 74, 2, 74, 1, Q("0.918 in")))
sketch1.addConstraint(Sketcher.Constraint("Distance", 59, Q("0.075 in")))
sketch1.addConstraint(Sketcher.Constraint("DistanceY", 17, 1, 17, 2, Q("1.4515 in")))
sketch1.addConstraint(Sketcher.Constraint("DistanceX", -1, 1, 57, 2, Q("0.8280002 in")))
sketch1.addConstraint(Sketcher.Constraint("Radius", 22, 0.635005))
sketch1.addConstraint(Sketcher.Constraint("Distance", 23, 5.539698))
sketch1.addConstraint(Sketcher.Constraint("DistanceX", -1, 1, 6, 2, 31.1125))
sketch1.addConstraint(Sketcher.Constraint("DistanceX", 60, 1, 60, 2, 9.456295))
sketch1.addConstraint(Sketcher.Constraint("DistanceY", 5, 1, 5, 2, 24.127495))
sketch1.addConstraint(Sketcher.Constraint("DistanceY", 21, 2, 21, 1, 35.864384))
sketch1.addConstraint(Sketcher.Constraint("DistanceY", 25, 2, 25, 1, 20.116384))
sketch1.addConstraint(Sketcher.Constraint("DistanceY", -1, 1, 22, 3, 27.000619))
sketch1.addConstraint(Sketcher.Constraint("DistanceY", -1, 1, 24, 3, 22.783381))
sketch1.addConstraint(Sketcher.Constraint("DistanceX", -1, 1, 22, 1, 9.558949))
revolution = body.newObject("PartDesign::Revolution", "Revolution")
revolution.Profile = sketch1
revolution.ReferenceAxis = (sketch1, ["V_Axis"])
revolution.Angle = 360

doc.recompute()
